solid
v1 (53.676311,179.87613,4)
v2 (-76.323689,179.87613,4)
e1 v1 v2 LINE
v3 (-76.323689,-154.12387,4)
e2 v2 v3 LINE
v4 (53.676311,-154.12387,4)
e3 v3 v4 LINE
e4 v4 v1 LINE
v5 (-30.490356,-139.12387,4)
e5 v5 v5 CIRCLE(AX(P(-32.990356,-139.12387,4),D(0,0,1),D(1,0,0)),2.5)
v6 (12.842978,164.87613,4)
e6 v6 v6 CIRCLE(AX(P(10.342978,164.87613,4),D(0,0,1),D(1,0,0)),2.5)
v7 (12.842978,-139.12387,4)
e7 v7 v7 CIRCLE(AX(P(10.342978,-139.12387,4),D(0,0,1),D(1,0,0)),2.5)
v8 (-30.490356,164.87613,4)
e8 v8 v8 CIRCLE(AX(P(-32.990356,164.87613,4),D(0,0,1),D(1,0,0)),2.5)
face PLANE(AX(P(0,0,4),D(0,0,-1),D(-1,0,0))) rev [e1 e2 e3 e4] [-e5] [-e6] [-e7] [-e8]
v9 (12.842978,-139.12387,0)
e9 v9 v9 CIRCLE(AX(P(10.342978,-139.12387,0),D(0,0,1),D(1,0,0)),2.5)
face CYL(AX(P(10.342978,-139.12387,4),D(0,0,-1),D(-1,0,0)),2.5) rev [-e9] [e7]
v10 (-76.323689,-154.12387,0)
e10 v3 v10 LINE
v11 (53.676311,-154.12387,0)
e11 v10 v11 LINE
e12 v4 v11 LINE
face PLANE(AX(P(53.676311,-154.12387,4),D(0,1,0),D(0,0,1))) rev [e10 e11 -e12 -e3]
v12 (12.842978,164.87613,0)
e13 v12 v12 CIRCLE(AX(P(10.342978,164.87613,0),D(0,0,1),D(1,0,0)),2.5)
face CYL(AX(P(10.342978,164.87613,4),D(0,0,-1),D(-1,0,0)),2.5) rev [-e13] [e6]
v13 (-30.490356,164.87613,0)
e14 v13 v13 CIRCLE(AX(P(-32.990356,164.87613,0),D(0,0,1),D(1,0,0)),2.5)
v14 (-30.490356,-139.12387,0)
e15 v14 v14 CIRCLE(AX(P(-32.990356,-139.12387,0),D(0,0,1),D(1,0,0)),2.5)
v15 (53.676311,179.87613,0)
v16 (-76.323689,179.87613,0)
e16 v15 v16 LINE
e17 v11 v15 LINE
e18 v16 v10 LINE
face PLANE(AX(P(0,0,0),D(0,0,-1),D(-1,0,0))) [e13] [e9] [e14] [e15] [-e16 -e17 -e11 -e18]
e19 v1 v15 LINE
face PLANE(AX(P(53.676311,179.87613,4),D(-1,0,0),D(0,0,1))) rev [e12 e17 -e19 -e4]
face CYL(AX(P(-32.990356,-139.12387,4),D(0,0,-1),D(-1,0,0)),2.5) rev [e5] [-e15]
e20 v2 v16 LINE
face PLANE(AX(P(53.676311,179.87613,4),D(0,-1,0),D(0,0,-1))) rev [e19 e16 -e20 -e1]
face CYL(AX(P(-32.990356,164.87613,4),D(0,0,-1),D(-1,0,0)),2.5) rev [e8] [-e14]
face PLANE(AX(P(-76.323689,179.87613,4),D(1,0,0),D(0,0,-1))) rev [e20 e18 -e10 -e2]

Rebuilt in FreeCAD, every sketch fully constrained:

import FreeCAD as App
import Part
import Sketcher

V = App.Vector
Q = App.Units.Quantity


def add_polygon(sketch, points):
    """Adds a closed chain of lines whose ends are joined by coincident constraints."""
    first, n = sketch.GeometryCount, len(points)
    for a, b in zip(points, points[1:] + points[:1]):
        sketch.addGeometry(Part.LineSegment(App.Vector(*a, 0), App.Vector(*b, 0)), False)
    for i in range(n):
        sketch.addConstraint(Sketcher.Constraint("Coincident", first + i, 2, first + (i + 1) % n, 1))

doc = App.newDocument("Part")
params = doc.addObject("Spreadsheet::Sheet", "Params")
for row, (alias, value) in enumerate([
    ("sketch1_diameter", "5 mm"),
    ("sketch1_width", "130 mm"),
    ("sketch1_height", "334 mm"),
    ("pad1_length", "4 mm"),
], start=1):
    params.set(f"A{row}", alias)
    params.set(f"B{row}", "=" + value)
    params.setAlias(f"B{row}", alias)

body = doc.addObject("PartDesign::Body", "Body")

sketch1 = body.newObject("Sketcher::SketchObject", "Sketch")
sketch1.AttachmentSupport = (doc.getObject("XY_Plane"), [""])
sketch1.MapMode = "FlatFace"
add_polygon(sketch1, [(-76.3, 179.9), (-76.3, -154.1), (53.7, -154.1), (53.7, 179.9)])
sketch1.addGeometry(Part.Circle(V(-33, -139.1, 0), V(0, 0, 1), 2.5), False)
sketch1.addGeometry(Part.Circle(V(10.3, -139.1, 0), V(0, 0, 1), 2.5), False)
sketch1.addGeometry(Part.Circle(V(-33, 164.9, 0), V(0, 0, 1), 2.5), False)
sketch1.addGeometry(Part.Circle(V(10.3, 164.9, 0), V(0, 0, 1), 2.5), False)
sketch1.addConstraint(Sketcher.Constraint("Vertical", 0))
sketch1.addConstraint(Sketcher.Constraint("Horizontal", 1))
sketch1.addConstraint(Sketcher.Constraint("Vertical", 2))
sketch1.addConstraint(Sketcher.Constraint("Horizontal", 3))
sketch1.addConstraint(Sketcher.Constraint("Equal", 4, 5))
sketch1.addConstraint(Sketcher.Constraint("Equal", 5, 6))
sketch1.addConstraint(Sketcher.Constraint("Equal", 6, 7))
sketch1.addConstraint(Sketcher.Constraint("Horizontal", 4, 3, 5, 3))
sketch1.addConstraint(Sketcher.Constraint("Horizontal", 6, 3, 7, 3))
sketch1.addConstraint(Sketcher.Constraint("Vertical", 4, 3, 6, 3))
sketch1.addConstraint(Sketcher.Constraint("Vertical", 5, 3, 7, 3))
sketch1.addConstraint(Sketcher.Constraint("Diameter", 4, Q("5 mm")))
sketch1.addConstraint(Sketcher.Constraint("DistanceX", 1, 1, 1, 2, Q("130 mm")))
sketch1.addConstraint(Sketcher.Constraint("DistanceY", 0, 2, 0, 1, Q("334 mm")))
sketch1.addConstraint(Sketcher.Constraint("DistanceY", 4, 3, 6, 3, Q("304 mm")))
sketch1.addConstraint(Sketcher.Constraint("DistanceY", 0, 2, 4, 3, Q("15 mm")))
sketch1.addConstraint(Sketcher.Constraint("DistanceY", 4, 3, -1, 1, Q("139.12387 mm")))
sketch1.addConstraint(Sketcher.Constraint("DistanceX", 0, 2, -1, 1, Q("76.323689 mm")))
sketch1.addConstraint(Sketcher.Constraint("DistanceX", 4, 3, -1, 1, Q("32.990356 mm")))
sketch1.addConstraint(Sketcher.Constraint("DistanceX", -1, 1, 5, 3, Q("10.342978 mm")))
sketch1.setExpression("Constraints[15]", "Params.sketch1_diameter")
sketch1.setExpression("Constraints[16]", "Params.sketch1_width")
sketch1.setExpression("Constraints[17]", "Params.sketch1_height")
pad1 = body.newObject("PartDesign::Pad", "Pad")
pad1.Profile = sketch1
pad1.setExpression("Length", "Params.pad1_length")

doc.recompute()
